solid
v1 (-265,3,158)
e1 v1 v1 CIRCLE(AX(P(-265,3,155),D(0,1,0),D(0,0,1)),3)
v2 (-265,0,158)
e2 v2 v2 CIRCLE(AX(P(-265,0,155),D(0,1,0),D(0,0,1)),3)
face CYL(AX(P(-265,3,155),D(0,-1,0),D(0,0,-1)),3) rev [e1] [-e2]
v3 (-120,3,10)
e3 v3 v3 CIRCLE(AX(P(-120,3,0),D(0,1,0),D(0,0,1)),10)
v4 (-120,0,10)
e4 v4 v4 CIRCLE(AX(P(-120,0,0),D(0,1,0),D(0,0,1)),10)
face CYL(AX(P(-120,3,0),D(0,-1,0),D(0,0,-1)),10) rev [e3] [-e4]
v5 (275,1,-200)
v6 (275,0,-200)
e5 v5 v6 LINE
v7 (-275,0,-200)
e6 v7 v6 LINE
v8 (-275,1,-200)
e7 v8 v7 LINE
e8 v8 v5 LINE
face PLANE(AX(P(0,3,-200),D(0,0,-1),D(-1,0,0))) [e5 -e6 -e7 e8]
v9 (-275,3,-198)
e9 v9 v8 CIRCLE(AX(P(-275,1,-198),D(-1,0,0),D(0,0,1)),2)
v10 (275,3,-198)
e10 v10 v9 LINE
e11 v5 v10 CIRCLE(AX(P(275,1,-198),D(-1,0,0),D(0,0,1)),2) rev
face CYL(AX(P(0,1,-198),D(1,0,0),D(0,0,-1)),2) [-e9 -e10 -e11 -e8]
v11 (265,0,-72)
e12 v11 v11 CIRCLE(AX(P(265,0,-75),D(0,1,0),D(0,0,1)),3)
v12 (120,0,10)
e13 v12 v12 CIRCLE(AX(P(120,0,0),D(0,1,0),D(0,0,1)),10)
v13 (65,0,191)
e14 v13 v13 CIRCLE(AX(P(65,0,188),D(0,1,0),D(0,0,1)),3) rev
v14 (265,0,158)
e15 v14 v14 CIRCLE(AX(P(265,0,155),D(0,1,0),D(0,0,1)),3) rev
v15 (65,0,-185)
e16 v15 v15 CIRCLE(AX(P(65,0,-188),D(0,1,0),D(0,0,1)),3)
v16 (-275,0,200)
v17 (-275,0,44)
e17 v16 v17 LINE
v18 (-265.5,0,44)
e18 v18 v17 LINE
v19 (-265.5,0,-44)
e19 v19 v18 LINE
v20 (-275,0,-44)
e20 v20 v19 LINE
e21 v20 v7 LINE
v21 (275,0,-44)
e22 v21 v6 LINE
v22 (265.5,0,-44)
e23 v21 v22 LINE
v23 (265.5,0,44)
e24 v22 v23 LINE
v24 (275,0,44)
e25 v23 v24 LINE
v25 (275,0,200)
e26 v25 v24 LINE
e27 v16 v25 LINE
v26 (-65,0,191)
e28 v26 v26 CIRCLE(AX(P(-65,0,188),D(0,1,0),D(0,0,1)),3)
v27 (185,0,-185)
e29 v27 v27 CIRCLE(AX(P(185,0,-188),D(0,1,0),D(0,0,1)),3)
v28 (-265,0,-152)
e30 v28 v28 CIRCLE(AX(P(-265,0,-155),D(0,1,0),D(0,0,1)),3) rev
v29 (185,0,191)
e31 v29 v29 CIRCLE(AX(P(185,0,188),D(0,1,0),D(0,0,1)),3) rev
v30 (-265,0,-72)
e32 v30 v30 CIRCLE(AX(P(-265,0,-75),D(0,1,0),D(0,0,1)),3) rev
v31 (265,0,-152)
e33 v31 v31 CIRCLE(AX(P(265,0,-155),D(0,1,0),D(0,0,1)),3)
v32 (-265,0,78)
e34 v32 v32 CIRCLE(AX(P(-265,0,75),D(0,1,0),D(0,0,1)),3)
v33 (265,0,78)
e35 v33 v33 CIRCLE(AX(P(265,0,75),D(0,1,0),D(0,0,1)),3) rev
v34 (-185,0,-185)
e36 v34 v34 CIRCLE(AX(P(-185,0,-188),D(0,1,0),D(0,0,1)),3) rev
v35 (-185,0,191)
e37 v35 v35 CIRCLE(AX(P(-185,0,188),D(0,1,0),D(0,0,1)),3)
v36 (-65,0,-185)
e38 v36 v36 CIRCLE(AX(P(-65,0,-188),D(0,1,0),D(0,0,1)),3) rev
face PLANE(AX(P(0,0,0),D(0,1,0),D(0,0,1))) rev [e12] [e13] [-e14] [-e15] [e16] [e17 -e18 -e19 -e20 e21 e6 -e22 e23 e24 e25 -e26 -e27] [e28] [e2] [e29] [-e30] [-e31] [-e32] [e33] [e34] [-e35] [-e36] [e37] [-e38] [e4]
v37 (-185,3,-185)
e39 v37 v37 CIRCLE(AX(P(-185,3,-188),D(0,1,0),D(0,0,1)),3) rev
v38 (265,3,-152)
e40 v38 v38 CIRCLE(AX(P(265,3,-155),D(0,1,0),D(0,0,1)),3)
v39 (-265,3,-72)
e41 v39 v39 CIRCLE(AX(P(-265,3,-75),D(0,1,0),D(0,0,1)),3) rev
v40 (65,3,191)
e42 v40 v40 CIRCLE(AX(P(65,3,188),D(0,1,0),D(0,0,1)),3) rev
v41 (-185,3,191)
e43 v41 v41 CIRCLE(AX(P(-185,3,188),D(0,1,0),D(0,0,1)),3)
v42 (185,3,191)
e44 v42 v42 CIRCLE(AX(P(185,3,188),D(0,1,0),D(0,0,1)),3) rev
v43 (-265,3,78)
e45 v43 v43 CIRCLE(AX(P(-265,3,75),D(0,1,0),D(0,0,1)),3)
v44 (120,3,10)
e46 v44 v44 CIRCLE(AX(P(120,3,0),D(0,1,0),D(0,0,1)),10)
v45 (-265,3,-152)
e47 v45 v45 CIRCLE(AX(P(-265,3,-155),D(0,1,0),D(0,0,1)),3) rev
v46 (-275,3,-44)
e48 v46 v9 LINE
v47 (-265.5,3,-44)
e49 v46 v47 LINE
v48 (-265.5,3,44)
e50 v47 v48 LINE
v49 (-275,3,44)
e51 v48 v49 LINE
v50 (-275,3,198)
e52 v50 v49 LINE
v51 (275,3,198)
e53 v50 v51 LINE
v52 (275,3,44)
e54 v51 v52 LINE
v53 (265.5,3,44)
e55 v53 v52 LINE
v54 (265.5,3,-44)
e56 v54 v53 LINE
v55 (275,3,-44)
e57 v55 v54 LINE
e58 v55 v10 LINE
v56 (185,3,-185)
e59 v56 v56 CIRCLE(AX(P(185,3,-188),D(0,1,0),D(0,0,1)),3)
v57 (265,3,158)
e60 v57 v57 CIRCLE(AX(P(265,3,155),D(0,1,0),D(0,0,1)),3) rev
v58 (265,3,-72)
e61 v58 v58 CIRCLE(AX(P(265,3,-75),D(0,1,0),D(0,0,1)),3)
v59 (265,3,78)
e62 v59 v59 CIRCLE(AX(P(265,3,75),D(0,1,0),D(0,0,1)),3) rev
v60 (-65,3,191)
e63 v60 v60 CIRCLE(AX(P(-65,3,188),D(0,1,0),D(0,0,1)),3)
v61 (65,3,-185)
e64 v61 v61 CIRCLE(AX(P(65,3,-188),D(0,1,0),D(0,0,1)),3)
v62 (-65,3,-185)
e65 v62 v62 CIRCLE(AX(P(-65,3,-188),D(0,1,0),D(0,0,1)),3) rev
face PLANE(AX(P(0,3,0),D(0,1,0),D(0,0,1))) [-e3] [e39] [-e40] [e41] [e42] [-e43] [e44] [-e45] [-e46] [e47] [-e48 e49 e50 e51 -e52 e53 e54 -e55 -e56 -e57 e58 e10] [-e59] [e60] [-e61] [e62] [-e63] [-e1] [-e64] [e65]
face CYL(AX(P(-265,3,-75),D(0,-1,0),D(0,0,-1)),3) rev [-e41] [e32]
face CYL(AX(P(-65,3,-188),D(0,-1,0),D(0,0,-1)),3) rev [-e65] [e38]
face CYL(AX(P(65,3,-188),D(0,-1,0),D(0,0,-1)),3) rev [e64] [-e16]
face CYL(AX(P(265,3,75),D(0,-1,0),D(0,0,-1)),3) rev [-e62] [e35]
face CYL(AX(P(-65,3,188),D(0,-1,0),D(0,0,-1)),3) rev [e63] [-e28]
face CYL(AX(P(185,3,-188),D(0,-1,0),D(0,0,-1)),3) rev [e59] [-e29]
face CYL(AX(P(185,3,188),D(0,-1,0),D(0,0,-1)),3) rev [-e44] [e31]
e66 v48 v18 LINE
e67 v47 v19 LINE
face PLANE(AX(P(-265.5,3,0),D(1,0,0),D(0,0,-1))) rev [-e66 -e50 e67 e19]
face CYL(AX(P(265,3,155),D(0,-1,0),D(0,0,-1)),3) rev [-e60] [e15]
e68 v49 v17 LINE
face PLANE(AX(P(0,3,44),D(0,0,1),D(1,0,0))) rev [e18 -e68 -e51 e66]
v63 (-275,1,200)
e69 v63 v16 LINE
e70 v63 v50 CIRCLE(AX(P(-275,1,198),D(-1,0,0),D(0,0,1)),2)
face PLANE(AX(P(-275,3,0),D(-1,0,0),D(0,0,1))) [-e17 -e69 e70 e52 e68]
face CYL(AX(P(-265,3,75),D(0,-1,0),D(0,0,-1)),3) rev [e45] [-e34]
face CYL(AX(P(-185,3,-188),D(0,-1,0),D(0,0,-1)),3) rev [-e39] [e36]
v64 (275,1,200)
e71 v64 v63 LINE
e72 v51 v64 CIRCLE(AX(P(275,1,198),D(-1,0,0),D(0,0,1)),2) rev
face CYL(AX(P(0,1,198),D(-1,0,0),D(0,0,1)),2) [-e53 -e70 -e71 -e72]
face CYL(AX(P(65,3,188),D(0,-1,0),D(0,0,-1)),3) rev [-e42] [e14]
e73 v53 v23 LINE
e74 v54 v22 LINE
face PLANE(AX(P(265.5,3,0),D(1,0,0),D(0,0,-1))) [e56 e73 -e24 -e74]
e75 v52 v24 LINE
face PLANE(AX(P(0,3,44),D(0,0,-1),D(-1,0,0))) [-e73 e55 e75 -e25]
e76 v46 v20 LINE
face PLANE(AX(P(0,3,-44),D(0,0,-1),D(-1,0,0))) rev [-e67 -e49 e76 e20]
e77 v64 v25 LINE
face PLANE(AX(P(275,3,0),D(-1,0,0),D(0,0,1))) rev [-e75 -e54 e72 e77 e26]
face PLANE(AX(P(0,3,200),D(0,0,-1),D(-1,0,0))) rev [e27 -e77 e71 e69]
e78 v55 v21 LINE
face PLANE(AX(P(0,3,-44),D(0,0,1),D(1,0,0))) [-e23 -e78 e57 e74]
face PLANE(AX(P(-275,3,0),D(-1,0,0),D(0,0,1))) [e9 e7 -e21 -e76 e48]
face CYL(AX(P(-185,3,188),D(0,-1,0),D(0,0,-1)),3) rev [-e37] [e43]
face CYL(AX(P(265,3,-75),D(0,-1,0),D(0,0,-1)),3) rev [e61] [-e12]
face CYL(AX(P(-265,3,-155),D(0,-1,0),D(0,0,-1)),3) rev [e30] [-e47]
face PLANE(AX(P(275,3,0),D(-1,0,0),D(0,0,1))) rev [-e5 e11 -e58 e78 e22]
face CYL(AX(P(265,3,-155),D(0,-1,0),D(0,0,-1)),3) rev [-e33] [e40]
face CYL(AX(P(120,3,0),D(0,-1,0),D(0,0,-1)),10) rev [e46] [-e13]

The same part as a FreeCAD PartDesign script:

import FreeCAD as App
import Part
import Sketcher

V = App.Vector
Q = App.Units.Quantity


def edges_at(feature, points):
    """Names of the edges that pass closest to the given points."""
    edges = feature.Shape.Edges
    near = lambda p: min(range(len(edges)), key=lambda i: edges[i].distToShape(Part.Vertex(*p))[0])
    return sorted({f"Edge{near(p) + 1}" for p in points})

doc = App.newDocument("Part")
params = doc.addObject("Spreadsheet::Sheet", "Params")
for row, (alias, value) in enumerate([
    ("sketch1_diameter", "6 mm"),
    ("sketch1_diameter2", "20 mm"),
    ("sketch1_width", "550 mm"),
    ("sketch1_height", "156 mm"),
    ("sketch1_height2", "88 mm"),
    ("pad1_length", "3 mm"),
    ("fillet_radius", "2 mm"),
    ("fillet2_radius", "2 mm"),
], start=1):
    params.set(f"A{row}", alias)
    params.set(f"B{row}", "=" + value)
    params.setAlias(f"B{row}", alias)

body = doc.addObject("PartDesign::Body", "Body")

# Sketch on XZ plane
sketch1 = doc.addObject("Sketcher::SketchObject", "Sketch")
body.addObject(sketch1)
sketch1.AttachmentSupport = (doc.XZ_Plane, [""])
sketch1.MapMode = "FlatFace"
sketch1.addGeometry(Part.LineSegment(V(-275, 200, 0), V(275, 200, 0)), False)
sketch1.addGeometry(Part.LineSegment(V(275, 200, 0), V(275, 44, 0)), False)
sketch1.addGeometry(Part.LineSegment(V(275, 44, 0), V(265.5, 44, 0)), False)
sketch1.addGeometry(Part.LineSegment(V(265.5, 44, 0), V(265.5, -44, 0)), False)
sketch1.addGeometry(Part.LineSegment(V(265.5, -44, 0), V(275, -44, 0)), False)
sketch1.addGeometry(Part.LineSegment(V(275, -44, 0), V(275, -200, 0)), False)
sketch1.addGeometry(Part.LineSegment(V(275, -200, 0), V(-275, -200, 0)), False)
sketch1.addGeometry(Part.LineSegment(V(-275, -200, 0), V(-275, -44, 0)), False)
sketch1.addGeometry(Part.LineSegment(V(-275, -44, 0), V(-265.5, -44, 0)), False)
sketch1.addGeometry(Part.LineSegment(V(-265.5, -44, 0), V(-265.5, 44, 0)), False)
sketch1.addGeometry(Part.LineSegment(V(-265.5, 44, 0), V(-275, 44, 0)), False)
sketch1.addGeometry(Part.LineSegment(V(-275, 44, 0), V(-275, 200, 0)), False)
sketch1.addGeometry(Part.Circle(V(-265, 155, 0), V(0, 0, 1), 3), False)
sketch1.addGeometry(Part.Circle(V(-185, 188, 0), V(0, 0, 1), 3), False)
sketch1.addGeometry(Part.Circle(V(-65, 188, 0), V(0, 0, 1), 3), False)
sketch1.addGeometry(Part.Circle(V(-265, 75, 0), V(0, 0, 1), 3), False)
sketch1.addGeometry(Part.Circle(V(65, 188, 0), V(0, 0, 1), 3), False)
sketch1.addGeometry(Part.Circle(V(185, 188, 0), V(0, 0, 1), 3), False)
sketch1.addGeometry(Part.Circle(V(265, 155, 0), V(0, 0, 1), 3), False)
sketch1.addGeometry(Part.Circle(V(265, 75, 0), V(0, 0, 1), 3), False)
sketch1.addGeometry(Part.Circle(V(-265, -75, 0), V(0, 0, 1), 3), False)
sketch1.addGeometry(Part.Circle(V(-120, 0, 0), V(0, 0, 1), 10), False)
sketch1.addGeometry(Part.Circle(V(-265, -155, 0), V(0, 0, 1), 3), False)
sketch1.addGeometry(Part.Circle(V(-185, -188, 0), V(0, 0, 1), 3), False)
sketch1.addGeometry(Part.Circle(V(-65, -188, 0), V(0, 0, 1), 3), False)
sketch1.addGeometry(Part.Circle(V(120, 0, 0), V(0, 0, 1), 10), False)
sketch1.addGeometry(Part.Circle(V(265, -75, 0), V(0, 0, 1), 3), False)
sketch1.addGeometry(Part.Circle(V(65, -188, 0), V(0, 0, 1), 3), False)
sketch1.addGeometry(Part.Circle(V(185, -188, 0), V(0, 0, 1), 3), False)
sketch1.addGeometry(Part.Circle(V(265, -155, 0), V(0, 0, 1), 3), False)
sketch1.addConstraint(Sketcher.Constraint("Coincident", 0, 2, 1, 1))
sketch1.addConstraint(Sketcher.Constraint("Coincident", 1, 2, 2, 1))
sketch1.addConstraint(Sketcher.Constraint("Coincident", 2, 2, 3, 1))
sketch1.addConstraint(Sketcher.Constraint("Coincident", 3, 2, 4, 1))
sketch1.addConstraint(Sketcher.Constraint("Coincident", 4, 2, 5, 1))
sketch1.addConstraint(Sketcher.Constraint("Coincident", 5, 2, 6, 1))
sketch1.addConstraint(Sketcher.Constraint("Coincident", 6, 2, 7, 1))
sketch1.addConstraint(Sketcher.Constraint("Coincident", 7, 2, 8, 1))
sketch1.addConstraint(Sketcher.Constraint("Coincident", 8, 2, 9, 1))
sketch1.addConstraint(Sketcher.Constraint("Coincident", 9, 2, 10, 1))
sketch1.addConstraint(Sketcher.Constraint("Coincident", 10, 2, 11, 1))
sketch1.addConstraint(Sketcher.Constraint("Coincident", 11, 2, 0, 1))
sketch1.addConstraint(Sketcher.Constraint("Horizontal", 0))
sketch1.addConstraint(Sketcher.Constraint("Vertical", 1))
sketch1.addConstraint(Sketcher.Constraint("Horizontal", 2))
sketch1.addConstraint(Sketcher.Constraint("Vertical", 3))
sketch1.addConstraint(Sketcher.Constraint("Horizontal", 4))
sketch1.addConstraint(Sketcher.Constraint("Vertical", 5))
sketch1.addConstraint(Sketcher.Constraint("Horizontal", 6))
sketch1.addConstraint(Sketcher.Constraint("Vertical", 7))
sketch1.addConstraint(Sketcher.Constraint("Horizontal", 8))
sketch1.addConstraint(Sketcher.Constraint("Vertical", 9))
sketch1.addConstraint(Sketcher.Constraint("Horizontal", 10))
sketch1.addConstraint(Sketcher.Constraint("Vertical", 11))
sketch1.addConstraint(Sketcher.Constraint("Equal", 12, 13))
sketch1.addConstraint(Sketcher.Constraint("Equal", 13, 14))
sketch1.addConstraint(Sketcher.Constraint("Equal", 14, 15))
sketch1.addConstraint(Sketcher.Constraint("Equal", 15, 16))
sketch1.addConstraint(Sketcher.Constraint("Equal", 16, 17))
sketch1.addConstraint(Sketcher.Constraint("Equal", 17, 18))
sketch1.addConstraint(Sketcher.Constraint("Equal", 18, 19))
sketch1.addConstraint(Sketcher.Constraint("Equal", 19, 20))
sketch1.addConstraint(Sketcher.Constraint("Equal", 20, 22))
sketch1.addConstraint(Sketcher.Constraint("Equal", 22, 23))
sketch1.addConstraint(Sketcher.Constraint("Equal", 23, 24))
sketch1.addConstraint(Sketcher.Constraint("Equal", 21, 25))
sketch1.addConstraint(Sketcher.Constraint("Equal", 24, 26))
sketch1.addConstraint(Sketcher.Constraint("Equal", 26, 27))
sketch1.addConstraint(Sketcher.Constraint("Equal", 27, 28))
sketch1.addConstraint(Sketcher.Constraint("Equal", 28, 29))
sketch1.addConstraint(Sketcher.Constraint("Symmetric", 19, 3, 20, 3, -1, 1))
sketch1.addConstraint(Sketcher.Constraint("Symmetric", 18, 3, 22, 3, -1, 1))
sketch1.addConstraint(Sketcher.Constraint("Symmetric", 17, 3, 23, 3, -1, 1))
sketch1.addConstraint(Sketcher.Constraint("Symmetric", 16, 3, 24, 3, -1, 1))
sketch1.addConstraint(Sketcher.Constraint("Symmetric", 21, 3, 25, 3, -1, 1))
sketch1.addConstraint(Sketcher.Constraint("Symmetric", 15, 3, 26, 3, -1, 1))
sketch1.addConstraint(Sketcher.Constraint("Symmetric", 14, 3, 27, 3, -1, 1))
sketch1.addConstraint(Sketcher.Constraint("Symmetric", 13, 3, 28, 3, -1, 1))
sketch1.addConstraint(Sketcher.Constraint("Symmetric", 12, 3, 29, 3, -1, 1))
sketch1.addConstraint(Sketcher.Constraint("Symmetric", 0, 2, 6, 2, -1, 1))
sketch1.addConstraint(Sketcher.Constraint("Symmetric", 2, 2, 8, 2, -1, 1))
sketch1.addConstraint(Sketcher.Constraint("Symmetric", 4, 2, 10, 2, -1, 1))
sketch1.addConstraint(Sketcher.Constraint("Symmetric", 14, 3, 16, 3, -2))
sketch1.addConstraint(Sketcher.Constraint("Symmetric", 13, 3, 17, 3, -2))
sketch1.addConstraint(Sketcher.Constraint("Symmetric", 12, 3, 18, 3, -2))
sketch1.addConstraint(Sketcher.Constraint("Symmetric", 15, 3, 19, 3, -2))
sketch1.addConstraint(Sketcher.Constraint("Symmetric", 4, 2, 7, 2, -2))
sketch1.addConstraint(Sketcher.Constraint("PointOnObject", 21, 3, -1))
sketch1.addConstraint(Sketcher.Constraint("Horizontal", 13, 3, 14, 3))
sketch1.addConstraint(Sketcher.Constraint("Vertical", 12, 3, 15, 3))
sketch1.addConstraint(Sketcher.Constraint("Diameter", 12, Q("6 mm")))
sketch1.addConstraint(Sketcher.Constraint("Diameter", 21, Q("20 mm")))
sketch1.addConstraint(Sketcher.Constraint("DistanceX", 0, 1, 0, 2, Q("550 mm")))
sketch1.addConstraint(Sketcher.Constraint("DistanceY", 1, 2, 1, 1, Q("156 mm")))
sketch1.addConstraint(Sketcher.Constraint("DistanceY", 3, 2, 3, 1, Q("88 mm")))
sketch1.addConstraint(Sketcher.Constraint("DistanceX", 2, 2, 2, 1, Q("9.5 mm")))
sketch1.addConstraint(Sketcher.Constraint("DistanceX", 12, 3, -1, 1, Q("265 mm")))
sketch1.addConstraint(Sketcher.Constraint("DistanceY", -1, 1, 12, 3, Q("155 mm")))
sketch1.addConstraint(Sketcher.Constraint("DistanceX", 13, 3, -1, 1, Q("185 mm")))
sketch1.addConstraint(Sketcher.Constraint("DistanceY", -1, 1, 13, 3, Q("188 mm")))
sketch1.addConstraint(Sketcher.Constraint("DistanceX", 14, 3, -1, 1, Q("65 mm")))
sketch1.addConstraint(Sketcher.Constraint("DistanceY", -1, 1, 15, 3, Q("75 mm")))
sketch1.addConstraint(Sketcher.Constraint("DistanceX", 21, 3, -1, 1, Q("120 mm")))
sketch1.setExpression("Constraints[60]", "Params.sketch1_diameter")
sketch1.setExpression("Constraints[61]", "Params.sketch1_diameter2")
sketch1.setExpression("Constraints[62]", "Params.sketch1_width")
sketch1.setExpression("Constraints[63]", "Params.sketch1_height")
sketch1.setExpression("Constraints[64]", "Params.sketch1_height2")
pad1 = doc.addObject("PartDesign::Pad", "Pad")
body.addObject(pad1)
pad1.Profile = sketch1
pad1.setExpression("Length", "Params.pad1_length")
pad1.Reversed = True
doc.recompute()

fillet = doc.addObject("PartDesign::Fillet", "Fillet")
body.addObject(fillet)
fillet.Base = (pad1, edges_at(pad1, [(0, 3, 200)]))
fillet.setExpression("Radius", "Params.fillet_radius")
doc.recompute()

fillet2 = doc.addObject("PartDesign::Fillet", "Fillet001")
body.addObject(fillet2)
fillet2.Base = (fillet, edges_at(fillet, [(0, 3, -200)]))
fillet2.setExpression("Radius", "Params.fillet2_radius")

doc.recompute()
